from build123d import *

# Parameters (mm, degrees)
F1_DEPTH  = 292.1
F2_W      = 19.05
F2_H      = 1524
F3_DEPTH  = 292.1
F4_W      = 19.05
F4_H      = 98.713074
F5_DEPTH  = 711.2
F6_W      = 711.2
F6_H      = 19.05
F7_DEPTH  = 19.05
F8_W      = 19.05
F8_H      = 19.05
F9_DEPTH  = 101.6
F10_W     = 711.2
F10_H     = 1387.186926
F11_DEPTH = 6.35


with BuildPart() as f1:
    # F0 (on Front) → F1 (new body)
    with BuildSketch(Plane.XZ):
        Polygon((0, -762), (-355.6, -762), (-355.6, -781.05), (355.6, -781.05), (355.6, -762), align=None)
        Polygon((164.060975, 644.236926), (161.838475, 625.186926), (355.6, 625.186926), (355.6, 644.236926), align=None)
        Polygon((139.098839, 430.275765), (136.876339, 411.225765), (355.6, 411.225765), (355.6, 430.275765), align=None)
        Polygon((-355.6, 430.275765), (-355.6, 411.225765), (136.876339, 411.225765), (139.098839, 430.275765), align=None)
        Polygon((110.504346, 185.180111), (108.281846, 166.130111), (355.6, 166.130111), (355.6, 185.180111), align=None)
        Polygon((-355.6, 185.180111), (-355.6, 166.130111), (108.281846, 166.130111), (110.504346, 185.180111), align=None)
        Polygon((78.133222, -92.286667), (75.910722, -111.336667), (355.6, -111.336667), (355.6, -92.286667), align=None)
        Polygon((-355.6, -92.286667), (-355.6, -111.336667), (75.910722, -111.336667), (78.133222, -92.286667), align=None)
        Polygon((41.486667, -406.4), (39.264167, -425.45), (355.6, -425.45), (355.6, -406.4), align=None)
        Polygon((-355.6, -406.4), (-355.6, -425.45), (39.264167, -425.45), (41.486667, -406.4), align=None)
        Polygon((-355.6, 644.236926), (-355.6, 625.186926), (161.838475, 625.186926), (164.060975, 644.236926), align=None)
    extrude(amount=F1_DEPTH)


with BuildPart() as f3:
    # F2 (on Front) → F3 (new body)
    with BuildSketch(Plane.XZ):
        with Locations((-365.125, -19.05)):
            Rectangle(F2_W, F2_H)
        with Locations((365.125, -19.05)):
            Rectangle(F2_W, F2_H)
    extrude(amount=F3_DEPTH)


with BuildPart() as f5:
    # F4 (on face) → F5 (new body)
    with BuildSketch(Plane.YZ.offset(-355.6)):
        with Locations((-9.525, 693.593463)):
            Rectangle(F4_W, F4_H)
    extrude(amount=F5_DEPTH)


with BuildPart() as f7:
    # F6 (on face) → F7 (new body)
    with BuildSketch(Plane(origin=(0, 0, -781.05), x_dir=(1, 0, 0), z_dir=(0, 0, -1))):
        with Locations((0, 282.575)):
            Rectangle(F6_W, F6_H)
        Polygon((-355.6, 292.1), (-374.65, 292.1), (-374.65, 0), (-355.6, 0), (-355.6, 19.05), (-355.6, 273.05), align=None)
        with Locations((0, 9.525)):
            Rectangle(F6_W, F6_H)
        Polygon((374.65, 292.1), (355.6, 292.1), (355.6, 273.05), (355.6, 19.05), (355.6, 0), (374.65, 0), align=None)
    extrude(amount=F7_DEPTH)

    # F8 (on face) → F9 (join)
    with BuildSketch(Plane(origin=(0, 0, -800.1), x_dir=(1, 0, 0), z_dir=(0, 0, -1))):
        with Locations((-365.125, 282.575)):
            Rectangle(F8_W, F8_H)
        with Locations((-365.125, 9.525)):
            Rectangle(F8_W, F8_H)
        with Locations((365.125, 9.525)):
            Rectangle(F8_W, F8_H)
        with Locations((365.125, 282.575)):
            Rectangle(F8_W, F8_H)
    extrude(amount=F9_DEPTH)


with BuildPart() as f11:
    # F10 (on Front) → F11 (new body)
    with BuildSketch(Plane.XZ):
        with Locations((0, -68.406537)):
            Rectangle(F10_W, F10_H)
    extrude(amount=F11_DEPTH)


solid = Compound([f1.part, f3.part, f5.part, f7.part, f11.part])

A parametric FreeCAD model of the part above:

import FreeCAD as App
import Part
import Sketcher

V = App.Vector
Q = App.Units.Quantity

doc = App.newDocument("Part")
body = doc.addObject("PartDesign::Body", "Body")
body.AllowCompound = True

# Sketch on XZ plane
sketch1 = body.newObject("Sketcher::SketchObject", "Sketch")
sketch1.AttachmentSupport = (doc.getObject("XZ_Plane"), [""])
sketch1.MapMode = "FlatFace"
sketch1.addGeometry(Part.LineSegment(V(-356, -762, 0), V(-356, -781, 0)), False)
sketch1.addGeometry(Part.LineSegment(V(-356, -781, 0), V(356, -781, 0)), False)
sketch1.addGeometry(Part.LineSegment(V(356, -781, 0), V(356, -762, 0)), False)
sketch1.addGeometry(Part.LineSegment(V(356, -762, 0), V(-356, -762, 0)), False)
sketch1.addGeometry(Part.LineSegment(V(356, 625, 0), V(356, 644, 0)), False)
sketch1.addGeometry(Part.LineSegment(V(356, 644, 0), V(-356, 644, 0)), False)
sketch1.addGeometry(Part.LineSegment(V(-356, 644, 0), V(-356, 625, 0)), False)
sketch1.addGeometry(Part.LineSegment(V(-356, 625, 0), V(356, 625, 0)), False)
sketch1.addGeometry(Part.LineSegment(V(356, 411, 0), V(356, 430, 0)), False)
sketch1.addGeometry(Part.LineSegment(V(356, 430, 0), V(-356, 430, 0)), False)
sketch1.addGeometry(Part.LineSegment(V(-356, 430, 0), V(-356, 411, 0)), False)
sketch1.addGeometry(Part.LineSegment(V(-356, 411, 0), V(356, 411, 0)), False)
sketch1.addGeometry(Part.LineSegment(V(356, 166, 0), V(356, 185, 0)), False)
sketch1.addGeometry(Part.LineSegment(V(356, 185, 0), V(-356, 185, 0)), False)
sketch1.addGeometry(Part.LineSegment(V(-356, 185, 0), V(-356, 166, 0)), False)
sketch1.addGeometry(Part.LineSegment(V(-356, 166, 0), V(356, 166, 0)), False)
sketch1.addGeometry(Part.LineSegment(V(356, -111, 0), V(356, -92, 0)), False)
sketch1.addGeometry(Part.LineSegment(V(356, -92, 0), V(-356, -92, 0)), False)
sketch1.addGeometry(Part.LineSegment(V(-356, -92, 0), V(-356, -111, 0)), False)
sketch1.addGeometry(Part.LineSegment(V(-356, -111, 0), V(356, -111, 0)), False)
sketch1.addGeometry(Part.LineSegment(V(356, -425, 0), V(356, -406, 0)), False)
sketch1.addGeometry(Part.LineSegment(V(356, -406, 0), V(-356, -406, 0)), False)
sketch1.addGeometry(Part.LineSegment(V(-356, -406, 0), V(-356, -425, 0)), False)
sketch1.addGeometry(Part.LineSegment(V(-356, -425, 0), V(356, -425, 0)), False)
sketch1.addConstraint(Sketcher.Constraint("Coincident", 0, 2, 1, 1))
sketch1.addConstraint(Sketcher.Constraint("Coincident", 1, 2, 2, 1))
sketch1.addConstraint(Sketcher.Constraint("Coincident", 2, 2, 3, 1))
sketch1.addConstraint(Sketcher.Constraint("Coincident", 3, 2, 0, 1))
sketch1.addConstraint(Sketcher.Constraint("Coincident", 4, 2, 5, 1))
sketch1.addConstraint(Sketcher.Constraint("Coincident", 5, 2, 6, 1))
sketch1.addConstraint(Sketcher.Constraint("Coincident", 6, 2, 7, 1))
sketch1.addConstraint(Sketcher.Constraint("Coincident", 7, 2, 4, 1))
sketch1.addConstraint(Sketcher.Constraint("Coincident", 8, 2, 9, 1))
sketch1.addConstraint(Sketcher.Constraint("Coincident", 9, 2, 10, 1))
sketch1.addConstraint(Sketcher.Constraint("Coincident", 10, 2, 11, 1))
sketch1.addConstraint(Sketcher.Constraint("Coincident", 11, 2, 8, 1))
sketch1.addConstraint(Sketcher.Constraint("Coincident", 12, 2, 13, 1))
sketch1.addConstraint(Sketcher.Constraint("Coincident", 13, 2, 14, 1))
sketch1.addConstraint(Sketcher.Constraint("Coincident", 14, 2, 15, 1))
sketch1.addConstraint(Sketcher.Constraint("Coincident", 15, 2, 12, 1))
sketch1.addConstraint(Sketcher.Constraint("Coincident", 16, 2, 17, 1))
sketch1.addConstraint(Sketcher.Constraint("Coincident", 17, 2, 18, 1))
sketch1.addConstraint(Sketcher.Constraint("Coincident", 18, 2, 19, 1))
sketch1.addConstraint(Sketcher.Constraint("Coincident", 19, 2, 16, 1))
sketch1.addConstraint(Sketcher.Constraint("Coincident", 20, 2, 21, 1))
sketch1.addConstraint(Sketcher.Constraint("Coincident", 21, 2, 22, 1))
sketch1.addConstraint(Sketcher.Constraint("Coincident", 22, 2, 23, 1))
sketch1.addConstraint(Sketcher.Constraint("Coincident", 23, 2, 20, 1))
sketch1.addConstraint(Sketcher.Constraint("Vertical", 0))
sketch1.addConstraint(Sketcher.Constraint("Horizontal", 1))
sketch1.addConstraint(Sketcher.Constraint("Vertical", 2))
sketch1.addConstraint(Sketcher.Constraint("Horizontal", 3))
sketch1.addConstraint(Sketcher.Constraint("Vertical", 4))
sketch1.addConstraint(Sketcher.Constraint("Horizontal", 5))
sketch1.addConstraint(Sketcher.Constraint("Vertical", 6))
sketch1.addConstraint(Sketcher.Constraint("Horizontal", 7))
sketch1.addConstraint(Sketcher.Constraint("Vertical", 8))
sketch1.addConstraint(Sketcher.Constraint("Horizontal", 9))
sketch1.addConstraint(Sketcher.Constraint("Vertical", 10))
sketch1.addConstraint(Sketcher.Constraint("Horizontal", 11))
sketch1.addConstraint(Sketcher.Constraint("Vertical", 12))
sketch1.addConstraint(Sketcher.Constraint("Horizontal", 13))
sketch1.addConstraint(Sketcher.Constraint("Vertical", 14))
sketch1.addConstraint(Sketcher.Constraint("Horizontal", 15))
sketch1.addConstraint(Sketcher.Constraint("Vertical", 16))
sketch1.addConstraint(Sketcher.Constraint("Horizontal", 17))
sketch1.addConstraint(Sketcher.Constraint("Vertical", 18))
sketch1.addConstraint(Sketcher.Constraint("Horizontal", 19))
sketch1.addConstraint(Sketcher.Constraint("Vertical", 20))
sketch1.addConstraint(Sketcher.Constraint("Horizontal", 21))
sketch1.addConstraint(Sketcher.Constraint("Vertical", 22))
sketch1.addConstraint(Sketcher.Constraint("Horizontal", 23))
sketch1.addConstraint(Sketcher.Constraint("Vertical", 2, 2, 4, 2))
sketch1.addConstraint(Sketcher.Constraint("Vertical", 3, 2, 5, 2))
sketch1.addConstraint(Sketcher.Constraint("Vertical", 7, 2, 8, 2))
sketch1.addConstraint(Sketcher.Constraint("Vertical", 6, 2, 9, 2))
sketch1.addConstraint(Sketcher.Constraint("Vertical", 11, 2, 12, 2))
sketch1.addConstraint(Sketcher.Constraint("Vertical", 10, 2, 13, 2))
sketch1.addConstraint(Sketcher.Constraint("Vertical", 15, 2, 16, 2))
sketch1.addConstraint(Sketcher.Constraint("Vertical", 14, 2, 17, 2))
sketch1.addConstraint(Sketcher.Constraint("Vertical", 19, 2, 20, 2))
sketch1.addConstraint(Sketcher.Constraint("Vertical", 18, 2, 21, 2))
sketch1.addConstraint(Sketcher.Constraint("Equal", 2, 4))
sketch1.addConstraint(Sketcher.Constraint("Equal", 6, 8))
sketch1.addConstraint(Sketcher.Constraint("Equal", 10, 12))
sketch1.addConstraint(Sketcher.Constraint("Equal", 14, 16))
sketch1.addConstraint(Sketcher.Constraint("Equal", 18, 20))
sketch1.addConstraint(Sketcher.Constraint("DistanceX", 1, 1, 1, 2, Q("28 in")))
sketch1.addConstraint(Sketcher.Constraint("DistanceX", 0, 2, -1, 1, Q("14 in")))
sketch1.addConstraint(Sketcher.Constraint("DistanceY", 2, 2, -1, 1, Q("30 in")))
sketch1.addConstraint(Sketcher.Constraint("DistanceY", 20, 2, -1, 1, Q("16 in")))
sketch1.addConstraint(Sketcher.Constraint("DistanceY", 0, 2, 0, 1, Q("0.75 in")))
sketch1.addConstraint(Sketcher.Constraint("DistanceY", -1, 1, 12, 2, 185.180111))
sketch1.addConstraint(Sketcher.Constraint("DistanceY", 8, 2, 7, 2, 194.911161))
sketch1.addConstraint(Sketcher.Constraint("DistanceY", 16, 2, 15, 2, 258.416778))
sketch1.addConstraint(Sketcher.Constraint("DistanceY", 16, 2, 11, 2, 503.512432))
pad1 = body.newObject("PartDesign::Pad", "Pad")
pad1.Profile = sketch1
pad1.Length = Q("11.5 in")
body2 = doc.addObject("PartDesign::Body", "Body001")
body2.AllowCompound = True

# Sketch on XZ plane
sketch2 = body2.newObject("Sketcher::SketchObject", "Sketch001")
sketch2.AttachmentSupport = (doc.getObject("XZ_Plane001"), [""])
sketch2.MapMode = "FlatFace"
sketch2.addGeometry(Part.LineSegment(V(-375, 743, 0), V(-375, -781, 0)), False)
sketch2.addGeometry(Part.LineSegment(V(-375, -781, 0), V(-356, -781, 0)), False)
sketch2.addGeometry(Part.LineSegment(V(-356, -781, 0), V(-356, 743, 0)), False)
sketch2.addGeometry(Part.LineSegment(V(-356, 743, 0), V(-375, 743, 0)), False)
sketch2.addGeometry(Part.LineSegment(V(356, 743, 0), V(356, -781, 0)), False)
sketch2.addGeometry(Part.LineSegment(V(356, -781, 0), V(375, -781, 0)), False)
sketch2.addGeometry(Part.LineSegment(V(375, -781, 0), V(375, 743, 0)), False)
sketch2.addGeometry(Part.LineSegment(V(375, 743, 0), V(356, 743, 0)), False)
sketch2.addConstraint(Sketcher.Constraint("Coincident", 0, 2, 1, 1))
sketch2.addConstraint(Sketcher.Constraint("Coincident", 1, 2, 2, 1))
sketch2.addConstraint(Sketcher.Constraint("Coincident", 2, 2, 3, 1))
sketch2.addConstraint(Sketcher.Constraint("Coincident", 3, 2, 0, 1))
sketch2.addConstraint(Sketcher.Constraint("Coincident", 4, 2, 5, 1))
sketch2.addConstraint(Sketcher.Constraint("Coincident", 5, 2, 6, 1))
sketch2.addConstraint(Sketcher.Constraint("Coincident", 6, 2, 7, 1))
sketch2.addConstraint(Sketcher.Constraint("Coincident", 7, 2, 4, 1))
sketch2.addConstraint(Sketcher.Constraint("Vertical", 0))
sketch2.addConstraint(Sketcher.Constraint("Horizontal", 1))
sketch2.addConstraint(Sketcher.Constraint("Vertical", 2))
sketch2.addConstraint(Sketcher.Constraint("Horizontal", 3))
sketch2.addConstraint(Sketcher.Constraint("Vertical", 4))
sketch2.addConstraint(Sketcher.Constraint("Horizontal", 5))
sketch2.addConstraint(Sketcher.Constraint("Vertical", 6))
sketch2.addConstraint(Sketcher.Constraint("Horizontal", 7))
sketch2.addConstraint(Sketcher.Constraint("Symmetric", 1, 2, 4, 2, -2))
sketch2.addConstraint(Sketcher.Constraint("Symmetric", 3, 2, 6, 2, -2))
sketch2.addConstraint(Sketcher.Constraint("DistanceY", 0, 2, 0, 1, Q("60 in")))
sketch2.addConstraint(Sketcher.Constraint("DistanceX", 1, 2, -1, 1, Q("14 in")))
sketch2.addConstraint(Sketcher.Constraint("DistanceX", 1, 1, 1, 2, Q("0.75 in")))
sketch2.addConstraint(Sketcher.Constraint("DistanceY", 0, 2, -1, 1, Q("30.75 in")))
pad2 = body2.newObject("PartDesign::Pad", "Pad001")
pad2.Profile = sketch2
pad2.Length = Q("11.5 in")
body3 = doc.addObject("PartDesign::Body", "Body002")

# Sketch on YZ plane
sketch3 = body3.newObject("Sketcher::SketchObject", "Sketch002")
sketch3.AttachmentSupport = (doc.getObject("YZ_Plane002"), [""])
sketch3.MapMode = "FlatFace"
sketch3.AttachmentOffset = App.Placement(V(0, 0, -14 * 25.4), App.Rotation())
sketch3.addGeometry(Part.LineSegment(V(-19, 743, 0), V(-19, 644, 0)), False)
sketch3.addGeometry(Part.LineSegment(V(-19, 644, 0), V(0, 644, 0)), False)
sketch3.addGeometry(Part.LineSegment(V(0, 644, 0), V(0, 743, 0)), False)
sketch3.addGeometry(Part.LineSegment(V(0, 743, 0), V(-19, 743, 0)), False)
sketch3.addConstraint(Sketcher.Constraint("Coincident", 0, 2, 1, 1))
sketch3.addConstraint(Sketcher.Constraint("Coincident", 1, 2, 2, 1))
sketch3.addConstraint(Sketcher.Constraint("Coincident", 2, 2, 3, 1))
sketch3.addConstraint(Sketcher.Constraint("Coincident", 3, 2, 0, 1))
sketch3.addConstraint(Sketcher.Constraint("Vertical", 0))
sketch3.addConstraint(Sketcher.Constraint("Horizontal", 1))
sketch3.addConstraint(Sketcher.Constraint("Vertical", 2))
sketch3.addConstraint(Sketcher.Constraint("Horizontal", 3))
sketch3.addConstraint(Sketcher.Constraint("PointOnObject", 1, 2, -2))
sketch3.addConstraint(Sketcher.Constraint("DistanceX", 1, 1, 1, 2, Q("0.75 in")))
sketch3.addConstraint(Sketcher.Constraint("DistanceY", -1, 1, 2, 2, Q("29.25 in")))
sketch3.addConstraint(Sketcher.Constraint("DistanceY", 0, 2, 0, 1, 98.713074))
pad3 = body3.newObject("PartDesign::Pad", "Pad002")
pad3.Profile = sketch3
pad3.Length = Q("28 in")
body4 = doc.addObject("PartDesign::Body", "Body003")

# Sketch on XY plane
sketch4 = body4.newObject("Sketcher::SketchObject", "Sketch003")
sketch4.AttachmentSupport = (doc.getObject("XY_Plane003"), [""])
sketch4.MapMode = "FlatFace"
sketch4.AttachmentOffset = App.Placement(V(0, 0, -30.75 * 25.4), App.Rotation())
sketch4.addGeometry(Part.LineSegment(V(-375, -292, 0), V(-375, 0, 0)), False)
sketch4.addGeometry(Part.LineSegment(V(-375, 0, 0), V(375, 0, 0)), False)
sketch4.addGeometry(Part.LineSegment(V(375, 0, 0), V(375, -292, 0)), False)
sketch4.addGeometry(Part.LineSegment(V(375, -292, 0), V(-375, -292, 0)), False)
sketch4.addGeometry(Part.LineSegment(V(-356, -273, 0), V(356, -273, 0)), False)
sketch4.addGeometry(Part.LineSegment(V(356, -273, 0), V(356, -19, 0)), False)
sketch4.addGeometry(Part.LineSegment(V(356, -19, 0), V(-356, -19, 0)), False)
sketch4.addGeometry(Part.LineSegment(V(-356, -19, 0), V(-356, -273, 0)), False)
sketch4.addConstraint(Sketcher.Constraint("Coincident", 0, 2, 1, 1))
sketch4.addConstraint(Sketcher.Constraint("Coincident", 1, 2, 2, 1))
sketch4.addConstraint(Sketcher.Constraint("Coincident", 2, 2, 3, 1))
sketch4.addConstraint(Sketcher.Constraint("Coincident", 3, 2, 0, 1))
sketch4.addConstraint(Sketcher.Constraint("Coincident", 4, 2, 5, 1))
sketch4.addConstraint(Sketcher.Constraint("Coincident", 5, 2, 6, 1))
sketch4.addConstraint(Sketcher.Constraint("Coincident", 6, 2, 7, 1))
sketch4.addConstraint(Sketcher.Constraint("Coincident", 7, 2, 4, 1))
sketch4.addConstraint(Sketcher.Constraint("Vertical", 0))
sketch4.addConstraint(Sketcher.Constraint("Horizontal", 1))
sketch4.addConstraint(Sketcher.Constraint("Vertical", 2))
sketch4.addConstraint(Sketcher.Constraint("Horizontal", 3))
sketch4.addConstraint(Sketcher.Constraint("Horizontal", 4))
sketch4.addConstraint(Sketcher.Constraint("Vertical", 5))
sketch4.addConstraint(Sketcher.Constraint("Horizontal", 6))
sketch4.addConstraint(Sketcher.Constraint("Vertical", 7))
sketch4.addConstraint(Sketcher.Constraint("Symmetric", 0, 2, 1, 2, -1, 1))
sketch4.addConstraint(Sketcher.Constraint("DistanceX", 4, 1, 4, 2, Q("28 in")))
sketch4.addConstraint(Sketcher.Constraint("DistanceY", 5, 1, 5, 2, Q("10 in")))
sketch4.addConstraint(Sketcher.Constraint("DistanceX", 1, 1, 1, 2, Q("29.5 in")))
sketch4.addConstraint(Sketcher.Constraint("DistanceY", 0, 1, 0, 2, Q("11.5 in")))
sketch4.addConstraint(Sketcher.Constraint("DistanceX", -1, 1, 4, 2, Q("14 in")))
sketch4.addConstraint(Sketcher.Constraint("DistanceY", 4, 2, -1, 1, Q("10.75 in")))
pad4 = body4.newObject("PartDesign::Pad", "Pad003")
pad4.Profile = sketch4
pad4.Length = Q("0.75 in")
pad4.Reversed = True

# Sketch on XY plane
sketch5 = body4.newObject("Sketcher::SketchObject", "Sketch004")
sketch5.AttachmentSupport = (doc.getObject("XY_Plane003"), [""])
sketch5.MapMode = "FlatFace"
sketch5.AttachmentOffset = App.Placement(V(0, 0, -31.5 * 25.4), App.Rotation())
sketch5.addGeometry(Part.LineSegment(V(-375, -292, 0), V(-375, -273, 0)), False)
sketch5.addGeometry(Part.LineSegment(V(-375, -273, 0), V(-356, -273, 0)), False)
sketch5.addGeometry(Part.LineSegment(V(-356, -273, 0), V(-356, -292, 0)), False)
sketch5.addGeometry(Part.LineSegment(V(-356, -292, 0), V(-375, -292, 0)), False)
sketch5.addGeometry(Part.LineSegment(V(-375, -19, 0), V(-375, 0, 0)), False)
sketch5.addGeometry(Part.LineSegment(V(-375, 0, 0), V(-356, 0, 0)), False)
sketch5.addGeometry(Part.LineSegment(V(-356, 0, 0), V(-356, -19, 0)), False)
sketch5.addGeometry(Part.LineSegment(V(-356, -19, 0), V(-375, -19, 0)), False)
sketch5.addGeometry(Part.LineSegment(V(356, -19, 0), V(356, 0, 0)), False)
sketch5.addGeometry(Part.LineSegment(V(356, 0, 0), V(375, 0, 0)), False)
sketch5.addGeometry(Part.LineSegment(V(375, 0, 0), V(375, -19, 0)), False)
sketch5.addGeometry(Part.LineSegment(V(375, -19, 0), V(356, -19, 0)), False)
sketch5.addGeometry(Part.LineSegment(V(356, -292, 0), V(356, -273, 0)), False)
sketch5.addGeometry(Part.LineSegment(V(356, -273, 0), V(375, -273, 0)), False)
sketch5.addGeometry(Part.LineSegment(V(375, -273, 0), V(375, -292, 0)), False)
sketch5.addGeometry(Part.LineSegment(V(375, -292, 0), V(356, -292, 0)), False)
sketch5.addConstraint(Sketcher.Constraint("Coincident", 0, 2, 1, 1))
sketch5.addConstraint(Sketcher.Constraint("Coincident", 1, 2, 2, 1))
sketch5.addConstraint(Sketcher.Constraint("Coincident", 2, 2, 3, 1))
sketch5.addConstraint(Sketcher.Constraint("Coincident", 3, 2, 0, 1))
sketch5.addConstraint(Sketcher.Constraint("Coincident", 4, 2, 5, 1))
sketch5.addConstraint(Sketcher.Constraint("Coincident", 5, 2, 6, 1))
sketch5.addConstraint(Sketcher.Constraint("Coincident", 6, 2, 7, 1))
sketch5.addConstraint(Sketcher.Constraint("Coincident", 7, 2, 4, 1))
sketch5.addConstraint(Sketcher.Constraint("Coincident", 8, 2, 9, 1))
sketch5.addConstraint(Sketcher.Constraint("Coincident", 9, 2, 10, 1))
sketch5.addConstraint(Sketcher.Constraint("Coincident", 10, 2, 11, 1))
sketch5.addConstraint(Sketcher.Constraint("Coincident", 11, 2, 8, 1))
sketch5.addConstraint(Sketcher.Constraint("Coincident", 12, 2, 13, 1))
sketch5.addConstraint(Sketcher.Constraint("Coincident", 13, 2, 14, 1))
sketch5.addConstraint(Sketcher.Constraint("Coincident", 14, 2, 15, 1))
sketch5.addConstraint(Sketcher.Constraint("Coincident", 15, 2, 12, 1))
sketch5.addConstraint(Sketcher.Constraint("Vertical", 0))
sketch5.addConstraint(Sketcher.Constraint("Horizontal", 1))
sketch5.addConstraint(Sketcher.Constraint("Vertical", 2))
sketch5.addConstraint(Sketcher.Constraint("Horizontal", 3))
sketch5.addConstraint(Sketcher.Constraint("Vertical", 4))
sketch5.addConstraint(Sketcher.Constraint("Horizontal", 5))
sketch5.addConstraint(Sketcher.Constraint("Vertical", 6))
sketch5.addConstraint(Sketcher.Constraint("Horizontal", 7))
sketch5.addConstraint(Sketcher.Constraint("Vertical", 8))
sketch5.addConstraint(Sketcher.Constraint("Horizontal", 9))
sketch5.addConstraint(Sketcher.Constraint("Vertical", 10))
sketch5.addConstraint(Sketcher.Constraint("Horizontal", 11))
sketch5.addConstraint(Sketcher.Constraint("Vertical", 12))
sketch5.addConstraint(Sketcher.Constraint("Horizontal", 13))
sketch5.addConstraint(Sketcher.Constraint("Vertical", 14))
sketch5.addConstraint(Sketcher.Constraint("Horizontal", 15))
sketch5.addConstraint(Sketcher.Constraint("Symmetric", 5, 2, 8, 2, -1, 1))
sketch5.addConstraint(Sketcher.Constraint("Symmetric", 4, 2, 9, 2, -2))
sketch5.addConstraint(Sketcher.Constraint("Symmetric", 1, 2, 12, 2, -2))
sketch5.addConstraint(Sketcher.Constraint("Symmetric", 3, 2, 14, 2, -2))
sketch5.addConstraint(Sketcher.Constraint("Horizontal", 7, 2, 10, 2))
sketch5.addConstraint(Sketcher.Constraint("Vertical", 3, 2, 4, 2))
sketch5.addConstraint(Sketcher.Constraint("Vertical", 2, 2, 5, 2))
sketch5.addConstraint(Sketcher.Constraint("Equal", 15, 0))
sketch5.addConstraint(Sketcher.Constraint("Equal", 2, 4))
sketch5.addConstraint(Sketcher.Constraint("DistanceX", 1, 2, -1, 1, Q("14 in")))
sketch5.addConstraint(Sketcher.Constraint("DistanceY", 1, 2, 6, 2, Q("10 in")))
sketch5.addConstraint(Sketcher.Constraint("DistanceX", 1, 1, 1, 2, Q("0.75 in")))
pad5 = body4.newObject("PartDesign::Pad", "Pad004")
pad5.Profile = sketch5
pad5.Length = Q("4 in")
pad5.Reversed = True
body5 = doc.addObject("PartDesign::Body", "Body004")

# Sketch on XZ plane
sketch6 = body5.newObject("Sketcher::SketchObject", "Sketch005")
sketch6.AttachmentSupport = (doc.getObject("XZ_Plane004"), [""])
sketch6.MapMode = "FlatFace"
sketch6.addGeometry(Part.LineSegment(V(-356, 625, 0), V(-356, -762, 0)), False)
sketch6.addGeometry(Part.LineSegment(V(-356, -762, 0), V(356, -762, 0)), False)
sketch6.addGeometry(Part.LineSegment(V(356, -762, 0), V(356, 625, 0)), False)
sketch6.addGeometry(Part.LineSegment(V(356, 625, 0), V(-356, 625, 0)), False)
sketch6.addConstraint(Sketcher.Constraint("Coincident", 0, 2, 1, 1))
sketch6.addConstraint(Sketcher.Constraint("Coincident", 1, 2, 2, 1))
sketch6.addConstraint(Sketcher.Constraint("Coincident", 2, 2, 3, 1))
sketch6.addConstraint(Sketcher.Constraint("Coincident", 3, 2, 0, 1))
sketch6.addConstraint(Sketcher.Constraint("Vertical", 0))
sketch6.addConstraint(Sketcher.Constraint("Horizontal", 1))
sketch6.addConstraint(Sketcher.Constraint("Vertical", 2))
sketch6.addConstraint(Sketcher.Constraint("Horizontal", 3))
sketch6.addConstraint(Sketcher.Constraint("DistanceX", 1, 1, 1, 2, Q("28 in")))
sketch6.addConstraint(Sketcher.Constraint("DistanceX", 0, 2, -1, 1, Q("14 in")))
sketch6.addConstraint(Sketcher.Constraint("DistanceY", 0, 2, -1, 1, Q("30 in")))
sketch6.addConstraint(Sketcher.Constraint("DistanceY", 0, 2, 0, 1, 1387.186926))
pad6 = body5.newObject("PartDesign::Pad", "Pad005")
pad6.Profile = sketch6
pad6.Length = Q("0.25 in")

doc.recompute()
